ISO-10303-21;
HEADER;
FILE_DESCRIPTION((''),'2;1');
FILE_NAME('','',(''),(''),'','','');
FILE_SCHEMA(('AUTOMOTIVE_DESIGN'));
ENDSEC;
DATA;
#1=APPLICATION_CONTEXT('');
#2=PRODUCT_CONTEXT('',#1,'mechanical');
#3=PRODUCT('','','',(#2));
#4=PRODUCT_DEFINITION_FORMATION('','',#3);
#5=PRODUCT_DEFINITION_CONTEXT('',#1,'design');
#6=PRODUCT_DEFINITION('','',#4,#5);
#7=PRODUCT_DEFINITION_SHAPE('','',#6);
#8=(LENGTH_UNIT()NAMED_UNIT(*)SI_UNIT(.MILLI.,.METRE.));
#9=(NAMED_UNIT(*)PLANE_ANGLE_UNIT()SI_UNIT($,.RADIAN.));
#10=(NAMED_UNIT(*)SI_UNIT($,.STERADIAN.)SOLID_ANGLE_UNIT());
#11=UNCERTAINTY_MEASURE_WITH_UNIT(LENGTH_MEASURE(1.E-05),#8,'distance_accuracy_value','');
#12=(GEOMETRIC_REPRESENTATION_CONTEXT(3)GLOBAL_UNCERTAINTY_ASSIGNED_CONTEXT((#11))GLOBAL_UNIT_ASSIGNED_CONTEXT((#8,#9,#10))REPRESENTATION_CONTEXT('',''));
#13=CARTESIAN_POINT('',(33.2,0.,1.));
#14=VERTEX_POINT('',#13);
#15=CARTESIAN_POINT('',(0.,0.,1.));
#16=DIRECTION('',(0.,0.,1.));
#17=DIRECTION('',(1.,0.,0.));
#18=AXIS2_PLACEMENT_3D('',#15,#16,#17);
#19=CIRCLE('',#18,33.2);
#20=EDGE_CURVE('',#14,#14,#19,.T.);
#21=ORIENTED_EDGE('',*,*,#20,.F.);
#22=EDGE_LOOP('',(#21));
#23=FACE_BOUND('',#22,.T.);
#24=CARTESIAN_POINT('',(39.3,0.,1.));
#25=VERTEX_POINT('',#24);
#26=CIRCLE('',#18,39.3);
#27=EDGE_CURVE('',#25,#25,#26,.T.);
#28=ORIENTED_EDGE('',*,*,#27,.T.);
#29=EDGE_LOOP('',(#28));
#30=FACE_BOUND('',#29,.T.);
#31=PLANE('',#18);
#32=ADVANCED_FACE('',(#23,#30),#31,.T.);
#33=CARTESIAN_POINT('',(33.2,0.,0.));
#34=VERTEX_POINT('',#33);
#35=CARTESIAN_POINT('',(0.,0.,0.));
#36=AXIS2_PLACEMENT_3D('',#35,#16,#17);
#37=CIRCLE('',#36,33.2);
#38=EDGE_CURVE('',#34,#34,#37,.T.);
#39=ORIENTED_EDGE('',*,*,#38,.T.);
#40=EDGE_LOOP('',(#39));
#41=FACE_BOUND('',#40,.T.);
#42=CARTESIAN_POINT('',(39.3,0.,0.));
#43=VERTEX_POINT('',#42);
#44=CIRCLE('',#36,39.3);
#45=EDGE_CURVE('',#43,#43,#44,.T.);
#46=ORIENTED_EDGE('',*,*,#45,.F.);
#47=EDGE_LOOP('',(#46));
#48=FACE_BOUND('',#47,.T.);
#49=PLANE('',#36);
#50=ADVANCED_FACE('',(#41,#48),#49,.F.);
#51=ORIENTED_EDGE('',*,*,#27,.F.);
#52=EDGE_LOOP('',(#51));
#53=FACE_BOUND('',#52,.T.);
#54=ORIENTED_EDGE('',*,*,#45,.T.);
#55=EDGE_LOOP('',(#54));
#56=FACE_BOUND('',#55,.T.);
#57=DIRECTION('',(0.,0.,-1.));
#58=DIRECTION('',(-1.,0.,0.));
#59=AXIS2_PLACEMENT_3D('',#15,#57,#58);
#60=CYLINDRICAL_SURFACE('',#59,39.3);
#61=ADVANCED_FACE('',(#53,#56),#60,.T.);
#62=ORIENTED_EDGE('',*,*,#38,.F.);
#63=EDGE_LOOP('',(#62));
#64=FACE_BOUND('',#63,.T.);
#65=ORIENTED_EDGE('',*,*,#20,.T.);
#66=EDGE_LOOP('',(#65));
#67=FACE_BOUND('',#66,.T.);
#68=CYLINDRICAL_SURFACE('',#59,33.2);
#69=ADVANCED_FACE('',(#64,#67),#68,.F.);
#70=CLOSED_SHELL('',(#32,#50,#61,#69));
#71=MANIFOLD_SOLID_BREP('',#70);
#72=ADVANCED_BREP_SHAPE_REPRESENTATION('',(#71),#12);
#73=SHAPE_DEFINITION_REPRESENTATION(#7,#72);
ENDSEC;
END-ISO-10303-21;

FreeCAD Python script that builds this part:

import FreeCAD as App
import Part
import Sketcher
Q = App.Units.Quantity

doc = App.newDocument("Part")
body = doc.addObject("PartDesign::Body", "Body")

sketch1 = body.newObject("Sketcher::SketchObject", "Sketch")
sketch1.AttachmentSupport = (doc.getObject("XY_Plane"), [""])
sketch1.MapMode = "FlatFace"
sketch1.addGeometry(Part.Circle(App.Vector(0, 0, 0), App.Vector(0, 0, 1), 39.3), False)
sketch1.addGeometry(Part.Circle(App.Vector(0, 0, 0), App.Vector(0, 0, 1), 33.2), False)
sketch1.addConstraint(Sketcher.Constraint("Coincident", 0, 3, -1, 1))
sketch1.addConstraint(Sketcher.Constraint("Coincident", 1, 3, -1, 1))
sketch1.addConstraint(Sketcher.Constraint("Diameter", 0, Q("78.6 mm")))
sketch1.addConstraint(Sketcher.Constraint("Diameter", 1, Q("66.4 mm")))
pad1 = body.newObject("PartDesign::Pad", "Pad")
pad1.Profile = sketch1
pad1.Length = 1

doc.recompute()
